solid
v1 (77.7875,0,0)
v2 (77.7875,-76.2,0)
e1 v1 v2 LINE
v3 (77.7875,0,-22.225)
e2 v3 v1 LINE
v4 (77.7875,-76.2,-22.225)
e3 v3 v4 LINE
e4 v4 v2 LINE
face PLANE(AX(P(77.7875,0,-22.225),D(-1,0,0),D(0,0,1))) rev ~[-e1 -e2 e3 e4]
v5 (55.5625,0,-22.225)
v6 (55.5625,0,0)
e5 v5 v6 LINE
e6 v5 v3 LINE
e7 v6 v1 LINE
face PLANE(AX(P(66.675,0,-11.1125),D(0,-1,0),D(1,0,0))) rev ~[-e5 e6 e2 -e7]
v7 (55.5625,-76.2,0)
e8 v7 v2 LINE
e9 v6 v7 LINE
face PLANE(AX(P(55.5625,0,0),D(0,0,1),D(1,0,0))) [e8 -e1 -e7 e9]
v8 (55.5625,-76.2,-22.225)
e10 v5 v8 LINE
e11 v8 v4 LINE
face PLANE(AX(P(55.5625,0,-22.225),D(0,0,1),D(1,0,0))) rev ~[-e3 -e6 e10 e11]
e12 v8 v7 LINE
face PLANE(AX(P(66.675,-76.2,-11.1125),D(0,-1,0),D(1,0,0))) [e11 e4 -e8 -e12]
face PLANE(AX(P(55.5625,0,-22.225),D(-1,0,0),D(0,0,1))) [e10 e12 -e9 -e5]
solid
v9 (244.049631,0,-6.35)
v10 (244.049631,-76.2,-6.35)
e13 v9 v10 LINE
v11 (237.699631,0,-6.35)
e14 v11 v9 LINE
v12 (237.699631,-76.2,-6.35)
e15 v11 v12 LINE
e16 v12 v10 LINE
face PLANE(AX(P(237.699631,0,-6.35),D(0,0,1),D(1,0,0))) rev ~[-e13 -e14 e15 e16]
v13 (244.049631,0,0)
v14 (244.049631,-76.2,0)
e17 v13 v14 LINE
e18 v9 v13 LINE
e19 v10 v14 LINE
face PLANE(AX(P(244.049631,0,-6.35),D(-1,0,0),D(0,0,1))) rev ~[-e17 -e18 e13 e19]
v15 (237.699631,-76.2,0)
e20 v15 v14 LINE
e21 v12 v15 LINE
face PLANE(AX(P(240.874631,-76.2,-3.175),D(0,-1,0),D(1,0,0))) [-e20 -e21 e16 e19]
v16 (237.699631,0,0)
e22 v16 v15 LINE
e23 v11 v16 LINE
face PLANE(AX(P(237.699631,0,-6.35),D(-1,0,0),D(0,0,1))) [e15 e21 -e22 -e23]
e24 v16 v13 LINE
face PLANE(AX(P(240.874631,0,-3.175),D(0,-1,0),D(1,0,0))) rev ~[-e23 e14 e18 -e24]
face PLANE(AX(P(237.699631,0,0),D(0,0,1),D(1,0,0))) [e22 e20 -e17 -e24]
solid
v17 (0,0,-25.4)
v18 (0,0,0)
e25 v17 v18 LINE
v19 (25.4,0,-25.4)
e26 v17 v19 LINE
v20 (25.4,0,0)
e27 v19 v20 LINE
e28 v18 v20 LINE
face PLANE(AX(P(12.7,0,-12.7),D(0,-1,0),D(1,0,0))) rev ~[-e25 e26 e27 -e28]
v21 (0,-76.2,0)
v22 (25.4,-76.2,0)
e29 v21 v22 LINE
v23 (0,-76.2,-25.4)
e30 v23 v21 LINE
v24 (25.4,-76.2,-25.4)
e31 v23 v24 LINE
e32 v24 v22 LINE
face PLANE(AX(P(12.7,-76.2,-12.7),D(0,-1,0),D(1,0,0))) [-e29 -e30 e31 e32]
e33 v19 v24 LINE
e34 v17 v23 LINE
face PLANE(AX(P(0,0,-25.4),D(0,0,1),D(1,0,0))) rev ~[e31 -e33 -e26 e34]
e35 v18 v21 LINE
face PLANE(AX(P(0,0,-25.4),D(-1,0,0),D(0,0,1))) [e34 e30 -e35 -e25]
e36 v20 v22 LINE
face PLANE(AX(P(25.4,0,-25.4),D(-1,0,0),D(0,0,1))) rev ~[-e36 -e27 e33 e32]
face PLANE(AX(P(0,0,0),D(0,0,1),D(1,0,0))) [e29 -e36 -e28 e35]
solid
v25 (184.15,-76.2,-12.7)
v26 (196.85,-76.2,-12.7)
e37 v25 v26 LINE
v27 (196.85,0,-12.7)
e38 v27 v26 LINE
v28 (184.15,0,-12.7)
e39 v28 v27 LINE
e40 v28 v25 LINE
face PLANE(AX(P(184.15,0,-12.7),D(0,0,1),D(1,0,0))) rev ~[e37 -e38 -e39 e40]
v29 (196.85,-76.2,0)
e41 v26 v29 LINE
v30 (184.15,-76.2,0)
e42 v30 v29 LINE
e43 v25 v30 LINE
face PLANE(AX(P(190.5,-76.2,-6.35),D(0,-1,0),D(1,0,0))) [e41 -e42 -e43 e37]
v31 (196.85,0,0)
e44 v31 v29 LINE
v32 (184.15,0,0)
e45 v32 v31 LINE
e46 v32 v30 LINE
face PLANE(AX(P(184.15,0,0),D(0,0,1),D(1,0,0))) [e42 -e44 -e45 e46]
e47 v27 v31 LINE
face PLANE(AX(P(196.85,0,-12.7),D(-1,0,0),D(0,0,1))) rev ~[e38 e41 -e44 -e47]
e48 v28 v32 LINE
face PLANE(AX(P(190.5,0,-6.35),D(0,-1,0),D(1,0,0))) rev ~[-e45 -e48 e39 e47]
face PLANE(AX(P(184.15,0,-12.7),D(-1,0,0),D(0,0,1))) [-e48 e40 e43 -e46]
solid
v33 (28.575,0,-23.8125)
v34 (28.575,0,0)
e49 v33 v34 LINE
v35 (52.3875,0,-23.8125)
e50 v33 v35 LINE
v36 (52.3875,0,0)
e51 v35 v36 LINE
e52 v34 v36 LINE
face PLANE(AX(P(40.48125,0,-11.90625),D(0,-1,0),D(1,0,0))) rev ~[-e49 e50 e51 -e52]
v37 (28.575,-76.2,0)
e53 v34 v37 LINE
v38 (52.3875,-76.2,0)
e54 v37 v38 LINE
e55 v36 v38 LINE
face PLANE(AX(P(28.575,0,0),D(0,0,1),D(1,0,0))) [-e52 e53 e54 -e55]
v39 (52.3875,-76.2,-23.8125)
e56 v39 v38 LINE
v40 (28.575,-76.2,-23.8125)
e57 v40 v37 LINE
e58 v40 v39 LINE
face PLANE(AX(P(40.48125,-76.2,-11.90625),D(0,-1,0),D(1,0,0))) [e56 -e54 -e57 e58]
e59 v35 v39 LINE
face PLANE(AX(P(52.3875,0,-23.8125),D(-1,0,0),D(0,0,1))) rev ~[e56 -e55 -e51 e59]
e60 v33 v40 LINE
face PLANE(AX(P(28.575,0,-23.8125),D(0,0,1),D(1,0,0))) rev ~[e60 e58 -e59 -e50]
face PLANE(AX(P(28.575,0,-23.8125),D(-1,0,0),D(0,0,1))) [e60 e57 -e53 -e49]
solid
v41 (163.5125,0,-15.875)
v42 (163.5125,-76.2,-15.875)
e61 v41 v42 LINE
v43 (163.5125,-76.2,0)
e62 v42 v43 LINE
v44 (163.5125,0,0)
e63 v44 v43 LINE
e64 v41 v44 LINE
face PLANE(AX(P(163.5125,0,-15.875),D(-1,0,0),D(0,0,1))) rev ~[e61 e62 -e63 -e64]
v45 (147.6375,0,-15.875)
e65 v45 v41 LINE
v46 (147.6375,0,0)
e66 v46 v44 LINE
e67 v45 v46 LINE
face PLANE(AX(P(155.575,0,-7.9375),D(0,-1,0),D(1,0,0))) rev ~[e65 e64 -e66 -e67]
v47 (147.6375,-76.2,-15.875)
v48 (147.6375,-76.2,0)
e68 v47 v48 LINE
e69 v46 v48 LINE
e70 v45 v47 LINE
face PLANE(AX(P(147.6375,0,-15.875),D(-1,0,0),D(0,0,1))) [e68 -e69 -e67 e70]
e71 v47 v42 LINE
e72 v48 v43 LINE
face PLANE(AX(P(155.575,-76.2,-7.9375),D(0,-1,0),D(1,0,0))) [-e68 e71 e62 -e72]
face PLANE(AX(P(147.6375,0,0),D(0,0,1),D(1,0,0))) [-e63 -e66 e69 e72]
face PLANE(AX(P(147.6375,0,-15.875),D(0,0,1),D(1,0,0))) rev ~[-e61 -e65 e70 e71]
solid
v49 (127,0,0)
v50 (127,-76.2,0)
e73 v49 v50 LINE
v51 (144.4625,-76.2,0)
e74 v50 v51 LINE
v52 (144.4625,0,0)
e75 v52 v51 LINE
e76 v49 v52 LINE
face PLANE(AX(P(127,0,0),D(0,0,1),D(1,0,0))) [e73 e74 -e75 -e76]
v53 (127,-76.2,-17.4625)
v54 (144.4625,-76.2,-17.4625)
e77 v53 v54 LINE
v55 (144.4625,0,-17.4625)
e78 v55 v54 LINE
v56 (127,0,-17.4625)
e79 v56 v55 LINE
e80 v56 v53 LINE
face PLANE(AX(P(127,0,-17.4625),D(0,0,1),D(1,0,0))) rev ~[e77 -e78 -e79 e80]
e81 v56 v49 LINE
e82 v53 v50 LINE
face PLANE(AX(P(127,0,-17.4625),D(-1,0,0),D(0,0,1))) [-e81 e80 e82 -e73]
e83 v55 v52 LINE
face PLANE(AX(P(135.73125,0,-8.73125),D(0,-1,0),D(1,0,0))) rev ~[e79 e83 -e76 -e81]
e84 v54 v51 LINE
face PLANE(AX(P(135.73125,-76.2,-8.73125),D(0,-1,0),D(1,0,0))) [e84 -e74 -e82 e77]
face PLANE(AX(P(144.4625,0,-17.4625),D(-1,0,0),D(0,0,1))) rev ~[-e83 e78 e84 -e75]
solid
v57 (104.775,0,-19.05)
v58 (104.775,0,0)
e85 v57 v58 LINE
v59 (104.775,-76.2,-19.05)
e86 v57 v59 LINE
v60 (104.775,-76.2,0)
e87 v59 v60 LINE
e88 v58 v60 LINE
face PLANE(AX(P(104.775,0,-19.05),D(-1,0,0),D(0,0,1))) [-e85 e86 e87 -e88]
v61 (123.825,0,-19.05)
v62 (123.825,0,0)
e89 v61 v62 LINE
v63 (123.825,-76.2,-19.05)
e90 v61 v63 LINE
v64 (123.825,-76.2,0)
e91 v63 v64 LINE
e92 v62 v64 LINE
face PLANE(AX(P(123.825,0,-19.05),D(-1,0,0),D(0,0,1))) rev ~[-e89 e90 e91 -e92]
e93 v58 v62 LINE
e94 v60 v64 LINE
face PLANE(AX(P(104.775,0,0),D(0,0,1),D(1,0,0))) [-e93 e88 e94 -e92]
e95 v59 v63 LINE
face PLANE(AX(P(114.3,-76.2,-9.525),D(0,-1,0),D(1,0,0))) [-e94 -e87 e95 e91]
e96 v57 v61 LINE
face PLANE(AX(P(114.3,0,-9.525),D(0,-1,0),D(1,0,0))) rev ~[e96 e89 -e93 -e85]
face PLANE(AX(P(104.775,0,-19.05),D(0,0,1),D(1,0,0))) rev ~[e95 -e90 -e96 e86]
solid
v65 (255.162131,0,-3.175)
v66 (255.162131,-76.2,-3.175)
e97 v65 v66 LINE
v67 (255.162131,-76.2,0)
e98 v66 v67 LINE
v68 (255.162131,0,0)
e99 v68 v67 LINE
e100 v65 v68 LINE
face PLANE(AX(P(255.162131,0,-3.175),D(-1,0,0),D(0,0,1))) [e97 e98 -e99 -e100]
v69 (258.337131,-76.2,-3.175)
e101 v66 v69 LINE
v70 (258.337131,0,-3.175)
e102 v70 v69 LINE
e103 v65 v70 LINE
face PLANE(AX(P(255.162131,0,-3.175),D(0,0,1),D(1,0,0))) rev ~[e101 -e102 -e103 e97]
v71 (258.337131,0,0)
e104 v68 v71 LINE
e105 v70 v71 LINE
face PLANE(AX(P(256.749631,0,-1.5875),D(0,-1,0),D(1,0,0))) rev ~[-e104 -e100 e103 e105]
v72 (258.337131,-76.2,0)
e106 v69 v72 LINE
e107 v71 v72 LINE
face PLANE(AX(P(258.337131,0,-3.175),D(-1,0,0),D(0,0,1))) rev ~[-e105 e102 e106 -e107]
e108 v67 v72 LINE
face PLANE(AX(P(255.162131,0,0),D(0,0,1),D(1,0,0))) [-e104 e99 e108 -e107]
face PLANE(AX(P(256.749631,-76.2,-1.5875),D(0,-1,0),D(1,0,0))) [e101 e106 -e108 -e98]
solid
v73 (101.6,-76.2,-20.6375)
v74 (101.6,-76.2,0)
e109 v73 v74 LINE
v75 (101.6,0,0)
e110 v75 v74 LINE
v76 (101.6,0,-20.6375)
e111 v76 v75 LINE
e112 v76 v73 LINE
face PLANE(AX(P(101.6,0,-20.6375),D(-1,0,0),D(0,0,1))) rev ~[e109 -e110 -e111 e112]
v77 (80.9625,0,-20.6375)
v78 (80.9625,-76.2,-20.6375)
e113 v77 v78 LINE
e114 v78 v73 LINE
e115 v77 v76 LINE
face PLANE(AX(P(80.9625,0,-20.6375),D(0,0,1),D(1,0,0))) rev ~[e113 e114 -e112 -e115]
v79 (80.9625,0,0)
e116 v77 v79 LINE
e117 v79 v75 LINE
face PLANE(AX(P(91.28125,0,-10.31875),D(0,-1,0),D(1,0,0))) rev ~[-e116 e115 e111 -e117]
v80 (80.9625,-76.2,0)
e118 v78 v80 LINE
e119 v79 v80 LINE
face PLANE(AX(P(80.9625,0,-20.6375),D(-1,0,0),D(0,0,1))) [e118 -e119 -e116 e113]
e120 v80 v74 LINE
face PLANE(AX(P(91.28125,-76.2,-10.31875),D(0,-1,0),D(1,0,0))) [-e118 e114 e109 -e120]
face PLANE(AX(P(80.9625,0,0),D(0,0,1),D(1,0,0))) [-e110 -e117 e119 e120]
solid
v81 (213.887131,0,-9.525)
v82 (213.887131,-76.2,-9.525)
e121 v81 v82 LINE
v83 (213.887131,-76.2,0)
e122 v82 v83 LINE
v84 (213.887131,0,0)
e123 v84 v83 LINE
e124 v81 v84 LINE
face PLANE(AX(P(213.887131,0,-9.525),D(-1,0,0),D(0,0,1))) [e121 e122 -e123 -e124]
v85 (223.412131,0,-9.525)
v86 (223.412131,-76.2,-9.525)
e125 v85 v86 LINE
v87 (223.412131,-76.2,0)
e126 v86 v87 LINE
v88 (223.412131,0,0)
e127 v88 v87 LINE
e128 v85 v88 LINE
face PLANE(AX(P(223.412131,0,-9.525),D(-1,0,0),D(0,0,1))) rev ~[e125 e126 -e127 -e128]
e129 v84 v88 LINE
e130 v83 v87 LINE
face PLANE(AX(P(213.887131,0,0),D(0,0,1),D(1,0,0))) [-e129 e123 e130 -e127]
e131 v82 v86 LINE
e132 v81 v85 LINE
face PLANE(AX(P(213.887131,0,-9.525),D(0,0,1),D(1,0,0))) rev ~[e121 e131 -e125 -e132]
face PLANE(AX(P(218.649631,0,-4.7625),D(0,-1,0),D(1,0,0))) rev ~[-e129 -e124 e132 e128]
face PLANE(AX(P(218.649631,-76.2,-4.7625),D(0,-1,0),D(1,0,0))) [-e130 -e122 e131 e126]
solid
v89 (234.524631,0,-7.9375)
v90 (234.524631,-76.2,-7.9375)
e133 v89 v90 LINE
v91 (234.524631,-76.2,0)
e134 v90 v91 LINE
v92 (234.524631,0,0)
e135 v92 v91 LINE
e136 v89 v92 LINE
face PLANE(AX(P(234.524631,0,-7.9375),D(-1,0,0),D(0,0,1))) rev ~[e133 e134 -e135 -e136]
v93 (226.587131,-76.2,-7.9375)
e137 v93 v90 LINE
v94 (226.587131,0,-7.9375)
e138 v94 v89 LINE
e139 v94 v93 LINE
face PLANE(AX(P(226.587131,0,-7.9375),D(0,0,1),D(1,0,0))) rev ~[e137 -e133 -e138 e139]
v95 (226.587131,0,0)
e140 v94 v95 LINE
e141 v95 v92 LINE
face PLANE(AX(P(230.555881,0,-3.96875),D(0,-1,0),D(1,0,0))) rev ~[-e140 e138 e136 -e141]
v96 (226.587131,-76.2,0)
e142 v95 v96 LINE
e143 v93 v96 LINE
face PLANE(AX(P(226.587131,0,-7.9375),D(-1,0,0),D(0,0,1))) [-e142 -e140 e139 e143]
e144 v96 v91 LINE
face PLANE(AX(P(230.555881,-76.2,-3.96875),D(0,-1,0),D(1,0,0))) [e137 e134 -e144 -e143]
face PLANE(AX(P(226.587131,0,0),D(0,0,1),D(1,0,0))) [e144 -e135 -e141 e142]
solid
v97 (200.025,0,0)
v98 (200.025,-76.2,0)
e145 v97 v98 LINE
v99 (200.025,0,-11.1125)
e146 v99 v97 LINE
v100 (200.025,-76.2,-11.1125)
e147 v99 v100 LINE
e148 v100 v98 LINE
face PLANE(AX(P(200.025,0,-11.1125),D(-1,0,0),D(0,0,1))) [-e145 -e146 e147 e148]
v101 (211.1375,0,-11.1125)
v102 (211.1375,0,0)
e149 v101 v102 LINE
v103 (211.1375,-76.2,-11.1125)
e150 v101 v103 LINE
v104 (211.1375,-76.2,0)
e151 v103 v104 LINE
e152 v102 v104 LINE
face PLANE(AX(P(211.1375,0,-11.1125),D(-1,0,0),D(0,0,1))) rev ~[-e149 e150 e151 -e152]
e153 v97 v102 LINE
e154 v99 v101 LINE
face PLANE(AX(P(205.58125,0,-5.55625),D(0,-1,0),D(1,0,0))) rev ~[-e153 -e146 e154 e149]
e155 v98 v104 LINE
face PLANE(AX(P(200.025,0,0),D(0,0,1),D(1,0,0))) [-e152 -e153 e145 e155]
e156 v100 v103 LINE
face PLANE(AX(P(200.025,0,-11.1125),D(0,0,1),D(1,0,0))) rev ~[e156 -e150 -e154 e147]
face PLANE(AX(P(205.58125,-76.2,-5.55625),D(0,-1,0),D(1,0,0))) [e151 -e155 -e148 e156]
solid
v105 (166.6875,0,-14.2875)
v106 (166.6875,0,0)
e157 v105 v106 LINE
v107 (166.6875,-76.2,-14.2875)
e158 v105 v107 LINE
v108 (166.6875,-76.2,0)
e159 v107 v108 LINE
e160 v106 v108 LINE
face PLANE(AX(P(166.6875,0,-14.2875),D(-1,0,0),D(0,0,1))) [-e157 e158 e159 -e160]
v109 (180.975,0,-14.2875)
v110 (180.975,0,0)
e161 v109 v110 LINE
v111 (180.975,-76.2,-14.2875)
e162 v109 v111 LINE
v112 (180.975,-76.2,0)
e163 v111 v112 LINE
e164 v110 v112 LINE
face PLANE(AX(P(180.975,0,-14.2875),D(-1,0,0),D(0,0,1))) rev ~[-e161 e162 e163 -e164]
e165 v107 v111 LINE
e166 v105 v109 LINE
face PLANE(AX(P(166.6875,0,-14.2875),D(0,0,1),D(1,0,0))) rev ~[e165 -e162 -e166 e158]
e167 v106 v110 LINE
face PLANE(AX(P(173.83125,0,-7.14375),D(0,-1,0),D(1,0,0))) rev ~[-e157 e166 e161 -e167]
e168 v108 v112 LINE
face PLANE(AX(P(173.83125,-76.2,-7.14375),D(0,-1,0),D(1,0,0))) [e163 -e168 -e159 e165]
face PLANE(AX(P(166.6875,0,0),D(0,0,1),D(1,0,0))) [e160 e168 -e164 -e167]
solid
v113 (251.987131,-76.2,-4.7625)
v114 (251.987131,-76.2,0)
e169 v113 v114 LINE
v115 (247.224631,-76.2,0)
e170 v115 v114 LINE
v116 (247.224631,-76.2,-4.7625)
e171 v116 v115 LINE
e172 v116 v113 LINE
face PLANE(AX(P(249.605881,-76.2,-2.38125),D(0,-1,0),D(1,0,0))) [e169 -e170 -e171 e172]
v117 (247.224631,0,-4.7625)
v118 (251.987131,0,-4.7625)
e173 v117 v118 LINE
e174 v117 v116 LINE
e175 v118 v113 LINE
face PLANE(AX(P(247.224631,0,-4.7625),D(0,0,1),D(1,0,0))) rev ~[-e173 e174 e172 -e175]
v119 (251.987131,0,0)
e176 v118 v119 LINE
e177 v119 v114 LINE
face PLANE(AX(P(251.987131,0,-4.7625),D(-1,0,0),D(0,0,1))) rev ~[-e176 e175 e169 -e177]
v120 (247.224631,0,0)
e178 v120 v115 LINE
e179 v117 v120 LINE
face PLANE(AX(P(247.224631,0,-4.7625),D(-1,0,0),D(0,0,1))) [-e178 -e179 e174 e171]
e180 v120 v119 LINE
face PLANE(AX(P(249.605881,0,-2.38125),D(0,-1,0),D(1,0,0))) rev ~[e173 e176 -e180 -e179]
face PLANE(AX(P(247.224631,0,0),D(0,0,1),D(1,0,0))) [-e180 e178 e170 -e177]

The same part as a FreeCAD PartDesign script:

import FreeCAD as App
import Part
import Sketcher

V = App.Vector
Q = App.Units.Quantity


def add_polygon(sketch, points):
    """Adds a closed chain of lines whose ends are joined by coincident constraints."""
    first, n = sketch.GeometryCount, len(points)
    for a, b in zip(points, points[1:] + points[:1]):
        sketch.addGeometry(Part.LineSegment(App.Vector(*a, 0), App.Vector(*b, 0)), False)
    for i in range(n):
        sketch.addConstraint(Sketcher.Constraint("Coincident", first + i, 2, first + (i + 1) % n, 1))

doc = App.newDocument("Part")
body = doc.addObject("PartDesign::Body", "Body")
body.AllowCompound = True

# Sketch on XZ plane
sketch1 = body.newObject("Sketcher::SketchObject", "Sketch")
sketch1.AttachmentSupport = (doc.getObject("XZ_Plane"), [""])
sketch1.MapMode = "FlatFace"
add_polygon(sketch1, [(0, 0), (0, -25.4), (25.4, -25.4), (25.4, 0)])  # lines 0-3
add_polygon(sketch1, [(28.575, 0), (28.575, -23.8125), (52.3875, -23.8125), (52.3875, 0)])  # lines 4-7
add_polygon(sketch1, [(55.5625, 0), (55.5625, -22.225), (77.7875, -22.225), (77.7875, 0)])  # lines 8-11
add_polygon(sketch1, [(80.9625, 0), (80.9625, -20.6375), (101.6, -20.6375), (101.6, 0)])  # lines 12-15
add_polygon(sketch1, [(104.775, 0), (104.775, -19.05), (123.825, -19.05), (123.825, 0)])  # lines 16-19
add_polygon(sketch1, [(127, 0), (127, -17.4625), (144.4625, -17.4625), (144.4625, 0)])  # lines 20-23
add_polygon(sketch1, [(147.6375, 0), (147.6375, -15.875), (163.5125, -15.875), (163.5125, 0)])  # lines 24-27
add_polygon(sketch1, [(166.6875, 0), (166.6875, -14.2875), (180.975, -14.2875), (180.975, 0)])  # lines 28-31
add_polygon(sketch1, [(184.15, 0), (184.15, -12.7), (196.85, -12.7), (196.85, 0)])  # lines 32-35
add_polygon(sketch1, [(200.025, 0), (200.025, -11.1125), (211.1375, -11.1125), (211.1375, 0)])  # lines 36-39
add_polygon(sketch1, [(213.887131, 0), (213.887131, -9.525), (223.412131, -9.525), (223.412131, 0)])  # lines 40-43
add_polygon(sketch1, [(226.587131, 0), (226.587131, -7.9375), (234.524631, -7.9375), (234.524631, 0)])  # lines 44-47
add_polygon(sketch1, [(237.699631, 0), (237.699631, -6.35), (244.049631, -6.35), (244.049631, 0)])  # lines 48-51
add_polygon(sketch1, [(247.224631, 0), (247.224631, -4.7625), (251.987131, -4.7625), (251.987131, 0)])  # lines 52-55
add_polygon(sketch1, [(255.162131, 0), (255.162131, -3.175), (258.337131, -3.175), (258.337131, 0)])  # lines 56-59
sketch1.addConstraint([
    Sketcher.Constraint("Vertical", 0),
    Sketcher.Constraint("Horizontal", 1),
    Sketcher.Constraint("Vertical", 2),
    Sketcher.Constraint("Horizontal", 3),
    Sketcher.Constraint("Vertical", 4),
    Sketcher.Constraint("Horizontal", 5),
    Sketcher.Constraint("Vertical", 6),
    Sketcher.Constraint("Horizontal", 7),
    Sketcher.Constraint("Vertical", 8),
    Sketcher.Constraint("Horizontal", 9),
    Sketcher.Constraint("Vertical", 10),
    Sketcher.Constraint("Horizontal", 11),
    Sketcher.Constraint("Vertical", 12),
    Sketcher.Constraint("Horizontal", 13),
    Sketcher.Constraint("Vertical", 14),
    Sketcher.Constraint("Horizontal", 15),
    Sketcher.Constraint("Vertical", 16),
    Sketcher.Constraint("Horizontal", 17),
    Sketcher.Constraint("Vertical", 18),
    Sketcher.Constraint("Horizontal", 19),
    Sketcher.Constraint("Vertical", 20),
    Sketcher.Constraint("Horizontal", 21),
    Sketcher.Constraint("Vertical", 22),
    Sketcher.Constraint("Horizontal", 23),
    Sketcher.Constraint("Vertical", 24),
    Sketcher.Constraint("Horizontal", 25),
    Sketcher.Constraint("Vertical", 26),
    Sketcher.Constraint("Horizontal", 27),
    Sketcher.Constraint("Vertical", 28),
    Sketcher.Constraint("Horizontal", 29),
    Sketcher.Constraint("Vertical", 30),
    Sketcher.Constraint("Horizontal", 31),
    Sketcher.Constraint("Vertical", 32),
    Sketcher.Constraint("Horizontal", 33),
    Sketcher.Constraint("Vertical", 34),
    Sketcher.Constraint("Horizontal", 35),
    Sketcher.Constraint("Vertical", 36),
    Sketcher.Constraint("Horizontal", 37),
    Sketcher.Constraint("Vertical", 38),
    Sketcher.Constraint("Horizontal", 39),
    Sketcher.Constraint("Vertical", 40),
    Sketcher.Constraint("Horizontal", 41),
    Sketcher.Constraint("Vertical", 42),
    Sketcher.Constraint("Horizontal", 43),
    Sketcher.Constraint("Vertical", 44),
    Sketcher.Constraint("Horizontal", 45),
    Sketcher.Constraint("Vertical", 46),
    Sketcher.Constraint("Horizontal", 47),
    Sketcher.Constraint("Vertical", 48),
    Sketcher.Constraint("Horizontal", 49),
    Sketcher.Constraint("Vertical", 50),
    Sketcher.Constraint("Horizontal", 51),
    Sketcher.Constraint("Vertical", 52),
    Sketcher.Constraint("Horizontal", 53),
    Sketcher.Constraint("Vertical", 54),
    Sketcher.Constraint("Horizontal", 55),
    Sketcher.Constraint("Vertical", 56),
    Sketcher.Constraint("Horizontal", 57),
    Sketcher.Constraint("Vertical", 58),
    Sketcher.Constraint("Horizontal", 59),
    Sketcher.Constraint("Coincident", 3, 2, -1, 1),
    Sketcher.Constraint("PointOnObject", 6, 2, -1),
    Sketcher.Constraint("PointOnObject", 10, 2, -1),
    Sketcher.Constraint("PointOnObject", 14, 2, -1),
    Sketcher.Constraint("PointOnObject", 18, 2, -1),
    Sketcher.Constraint("PointOnObject", 22, 2, -1),
    Sketcher.Constraint("PointOnObject", 26, 2, -1),
    Sketcher.Constraint("PointOnObject", 30, 2, -1),
    Sketcher.Constraint("PointOnObject", 34, 2, -1),
    Sketcher.Constraint("PointOnObject", 38, 2, -1),
    Sketcher.Constraint("PointOnObject", 42, 2, -1),
    Sketcher.Constraint("PointOnObject", 46, 2, -1),
    Sketcher.Constraint("PointOnObject", 50, 2, -1),
    Sketcher.Constraint("PointOnObject", 54, 2, -1),
    Sketcher.Constraint("PointOnObject", 58, 2, -1),
    Sketcher.Constraint("Equal", 3, 0),
    Sketcher.Constraint("Equal", 7, 4),
    Sketcher.Constraint("Equal", 11, 8),
    Sketcher.Constraint("Equal", 15, 12),
    Sketcher.Constraint("Equal", 19, 16),
    Sketcher.Constraint("Equal", 23, 20),
    Sketcher.Constraint("Equal", 27, 24),
    Sketcher.Constraint("Equal", 31, 28),
    Sketcher.Constraint("Equal", 35, 32),
    Sketcher.Constraint("Equal", 39, 36),
    Sketcher.Constraint("Equal", 43, 40),
    Sketcher.Constraint("Equal", 47, 44),
    Sketcher.Constraint("Equal", 51, 48),
    Sketcher.Constraint("Equal", 55, 52),
    Sketcher.Constraint("Equal", 59, 56),
    Sketcher.Constraint("DistanceX", 1, 1, 1, 2, Q("1 in")),
    Sketcher.Constraint("DistanceX", 33, 1, 33, 2, Q("0.5 in")),
    Sketcher.Constraint("DistanceX", -1, 1, 13, 2, Q("4 in")),
    Sketcher.Constraint("DistanceX", -1, 1, 20, 2, Q("5 in")),
    Sketcher.Constraint("DistanceX", 5, 2, 9, 2, Q("1 in")),
    Sketcher.Constraint("DistanceX", 8, 2, 12, 2, Q("1 in")),
    Sketcher.Constraint("DistanceX", 17, 1, 17, 2, Q("0.75 in")),
    Sketcher.Constraint("DistanceX", 49, 1, 49, 2, Q("0.25 in")),
    Sketcher.Constraint("DistanceX", 40, 2, 44, 2, Q("0.5 in")),
    Sketcher.Constraint("DistanceX", 45, 2, 52, 2, Q("0.5 in")),
    Sketcher.Constraint("DistanceX", 5, 1, 5, 2, Q("0.9375 in")),
    Sketcher.Constraint("DistanceX", 9, 1, 9, 2, Q("0.875 in")),
    Sketcher.Constraint("DistanceX", 13, 1, 13, 2, Q("0.8125 in")),
    Sketcher.Constraint("DistanceX", 21, 1, 21, 2, Q("0.6875 in")),
    Sketcher.Constraint("DistanceX", 25, 1, 25, 2, Q("0.625 in")),
    Sketcher.Constraint("DistanceX", 29, 1, 29, 2, Q("0.5625 in")),
    Sketcher.Constraint("DistanceX", 37, 1, 37, 2, Q("0.4375 in")),
    Sketcher.Constraint("DistanceX", 41, 1, 41, 2, Q("0.375 in")),
    Sketcher.Constraint("DistanceX", 45, 1, 45, 2, Q("0.3125 in")),
    Sketcher.Constraint("DistanceX", 53, 1, 53, 2, Q("0.1875 in")),
    Sketcher.Constraint("DistanceX", 57, 1, 57, 2, Q("0.125 in")),
    Sketcher.Constraint("DistanceX", -1, 1, 32, 2, Q("7.25 in")),
    Sketcher.Constraint("DistanceX", 21, 2, 25, 2, Q("0.75 in")),
    Sketcher.Constraint("DistanceX", 24, 2, 28, 2, Q("0.75 in")),
    Sketcher.Constraint("DistanceX", 29, 2, 36, 2, Q("0.75 in")),
    Sketcher.Constraint("DistanceX", 53, 2, 57, 2, Q("0.25 in")),
    Sketcher.Constraint("DistanceX", -1, 1, 16, 2, Q("4.125 in")),
    Sketcher.Constraint("DistanceX", 45, 2, 48, 2, Q("0.125 in")),
    Sketcher.Constraint("DistanceX", -1, 1, 40, 2, 213.887131),
])
pad1 = body.newObject("PartDesign::Pad", "Pad")
pad1.Profile = sketch1
pad1.Length = Q("3 in")

doc.recompute()
